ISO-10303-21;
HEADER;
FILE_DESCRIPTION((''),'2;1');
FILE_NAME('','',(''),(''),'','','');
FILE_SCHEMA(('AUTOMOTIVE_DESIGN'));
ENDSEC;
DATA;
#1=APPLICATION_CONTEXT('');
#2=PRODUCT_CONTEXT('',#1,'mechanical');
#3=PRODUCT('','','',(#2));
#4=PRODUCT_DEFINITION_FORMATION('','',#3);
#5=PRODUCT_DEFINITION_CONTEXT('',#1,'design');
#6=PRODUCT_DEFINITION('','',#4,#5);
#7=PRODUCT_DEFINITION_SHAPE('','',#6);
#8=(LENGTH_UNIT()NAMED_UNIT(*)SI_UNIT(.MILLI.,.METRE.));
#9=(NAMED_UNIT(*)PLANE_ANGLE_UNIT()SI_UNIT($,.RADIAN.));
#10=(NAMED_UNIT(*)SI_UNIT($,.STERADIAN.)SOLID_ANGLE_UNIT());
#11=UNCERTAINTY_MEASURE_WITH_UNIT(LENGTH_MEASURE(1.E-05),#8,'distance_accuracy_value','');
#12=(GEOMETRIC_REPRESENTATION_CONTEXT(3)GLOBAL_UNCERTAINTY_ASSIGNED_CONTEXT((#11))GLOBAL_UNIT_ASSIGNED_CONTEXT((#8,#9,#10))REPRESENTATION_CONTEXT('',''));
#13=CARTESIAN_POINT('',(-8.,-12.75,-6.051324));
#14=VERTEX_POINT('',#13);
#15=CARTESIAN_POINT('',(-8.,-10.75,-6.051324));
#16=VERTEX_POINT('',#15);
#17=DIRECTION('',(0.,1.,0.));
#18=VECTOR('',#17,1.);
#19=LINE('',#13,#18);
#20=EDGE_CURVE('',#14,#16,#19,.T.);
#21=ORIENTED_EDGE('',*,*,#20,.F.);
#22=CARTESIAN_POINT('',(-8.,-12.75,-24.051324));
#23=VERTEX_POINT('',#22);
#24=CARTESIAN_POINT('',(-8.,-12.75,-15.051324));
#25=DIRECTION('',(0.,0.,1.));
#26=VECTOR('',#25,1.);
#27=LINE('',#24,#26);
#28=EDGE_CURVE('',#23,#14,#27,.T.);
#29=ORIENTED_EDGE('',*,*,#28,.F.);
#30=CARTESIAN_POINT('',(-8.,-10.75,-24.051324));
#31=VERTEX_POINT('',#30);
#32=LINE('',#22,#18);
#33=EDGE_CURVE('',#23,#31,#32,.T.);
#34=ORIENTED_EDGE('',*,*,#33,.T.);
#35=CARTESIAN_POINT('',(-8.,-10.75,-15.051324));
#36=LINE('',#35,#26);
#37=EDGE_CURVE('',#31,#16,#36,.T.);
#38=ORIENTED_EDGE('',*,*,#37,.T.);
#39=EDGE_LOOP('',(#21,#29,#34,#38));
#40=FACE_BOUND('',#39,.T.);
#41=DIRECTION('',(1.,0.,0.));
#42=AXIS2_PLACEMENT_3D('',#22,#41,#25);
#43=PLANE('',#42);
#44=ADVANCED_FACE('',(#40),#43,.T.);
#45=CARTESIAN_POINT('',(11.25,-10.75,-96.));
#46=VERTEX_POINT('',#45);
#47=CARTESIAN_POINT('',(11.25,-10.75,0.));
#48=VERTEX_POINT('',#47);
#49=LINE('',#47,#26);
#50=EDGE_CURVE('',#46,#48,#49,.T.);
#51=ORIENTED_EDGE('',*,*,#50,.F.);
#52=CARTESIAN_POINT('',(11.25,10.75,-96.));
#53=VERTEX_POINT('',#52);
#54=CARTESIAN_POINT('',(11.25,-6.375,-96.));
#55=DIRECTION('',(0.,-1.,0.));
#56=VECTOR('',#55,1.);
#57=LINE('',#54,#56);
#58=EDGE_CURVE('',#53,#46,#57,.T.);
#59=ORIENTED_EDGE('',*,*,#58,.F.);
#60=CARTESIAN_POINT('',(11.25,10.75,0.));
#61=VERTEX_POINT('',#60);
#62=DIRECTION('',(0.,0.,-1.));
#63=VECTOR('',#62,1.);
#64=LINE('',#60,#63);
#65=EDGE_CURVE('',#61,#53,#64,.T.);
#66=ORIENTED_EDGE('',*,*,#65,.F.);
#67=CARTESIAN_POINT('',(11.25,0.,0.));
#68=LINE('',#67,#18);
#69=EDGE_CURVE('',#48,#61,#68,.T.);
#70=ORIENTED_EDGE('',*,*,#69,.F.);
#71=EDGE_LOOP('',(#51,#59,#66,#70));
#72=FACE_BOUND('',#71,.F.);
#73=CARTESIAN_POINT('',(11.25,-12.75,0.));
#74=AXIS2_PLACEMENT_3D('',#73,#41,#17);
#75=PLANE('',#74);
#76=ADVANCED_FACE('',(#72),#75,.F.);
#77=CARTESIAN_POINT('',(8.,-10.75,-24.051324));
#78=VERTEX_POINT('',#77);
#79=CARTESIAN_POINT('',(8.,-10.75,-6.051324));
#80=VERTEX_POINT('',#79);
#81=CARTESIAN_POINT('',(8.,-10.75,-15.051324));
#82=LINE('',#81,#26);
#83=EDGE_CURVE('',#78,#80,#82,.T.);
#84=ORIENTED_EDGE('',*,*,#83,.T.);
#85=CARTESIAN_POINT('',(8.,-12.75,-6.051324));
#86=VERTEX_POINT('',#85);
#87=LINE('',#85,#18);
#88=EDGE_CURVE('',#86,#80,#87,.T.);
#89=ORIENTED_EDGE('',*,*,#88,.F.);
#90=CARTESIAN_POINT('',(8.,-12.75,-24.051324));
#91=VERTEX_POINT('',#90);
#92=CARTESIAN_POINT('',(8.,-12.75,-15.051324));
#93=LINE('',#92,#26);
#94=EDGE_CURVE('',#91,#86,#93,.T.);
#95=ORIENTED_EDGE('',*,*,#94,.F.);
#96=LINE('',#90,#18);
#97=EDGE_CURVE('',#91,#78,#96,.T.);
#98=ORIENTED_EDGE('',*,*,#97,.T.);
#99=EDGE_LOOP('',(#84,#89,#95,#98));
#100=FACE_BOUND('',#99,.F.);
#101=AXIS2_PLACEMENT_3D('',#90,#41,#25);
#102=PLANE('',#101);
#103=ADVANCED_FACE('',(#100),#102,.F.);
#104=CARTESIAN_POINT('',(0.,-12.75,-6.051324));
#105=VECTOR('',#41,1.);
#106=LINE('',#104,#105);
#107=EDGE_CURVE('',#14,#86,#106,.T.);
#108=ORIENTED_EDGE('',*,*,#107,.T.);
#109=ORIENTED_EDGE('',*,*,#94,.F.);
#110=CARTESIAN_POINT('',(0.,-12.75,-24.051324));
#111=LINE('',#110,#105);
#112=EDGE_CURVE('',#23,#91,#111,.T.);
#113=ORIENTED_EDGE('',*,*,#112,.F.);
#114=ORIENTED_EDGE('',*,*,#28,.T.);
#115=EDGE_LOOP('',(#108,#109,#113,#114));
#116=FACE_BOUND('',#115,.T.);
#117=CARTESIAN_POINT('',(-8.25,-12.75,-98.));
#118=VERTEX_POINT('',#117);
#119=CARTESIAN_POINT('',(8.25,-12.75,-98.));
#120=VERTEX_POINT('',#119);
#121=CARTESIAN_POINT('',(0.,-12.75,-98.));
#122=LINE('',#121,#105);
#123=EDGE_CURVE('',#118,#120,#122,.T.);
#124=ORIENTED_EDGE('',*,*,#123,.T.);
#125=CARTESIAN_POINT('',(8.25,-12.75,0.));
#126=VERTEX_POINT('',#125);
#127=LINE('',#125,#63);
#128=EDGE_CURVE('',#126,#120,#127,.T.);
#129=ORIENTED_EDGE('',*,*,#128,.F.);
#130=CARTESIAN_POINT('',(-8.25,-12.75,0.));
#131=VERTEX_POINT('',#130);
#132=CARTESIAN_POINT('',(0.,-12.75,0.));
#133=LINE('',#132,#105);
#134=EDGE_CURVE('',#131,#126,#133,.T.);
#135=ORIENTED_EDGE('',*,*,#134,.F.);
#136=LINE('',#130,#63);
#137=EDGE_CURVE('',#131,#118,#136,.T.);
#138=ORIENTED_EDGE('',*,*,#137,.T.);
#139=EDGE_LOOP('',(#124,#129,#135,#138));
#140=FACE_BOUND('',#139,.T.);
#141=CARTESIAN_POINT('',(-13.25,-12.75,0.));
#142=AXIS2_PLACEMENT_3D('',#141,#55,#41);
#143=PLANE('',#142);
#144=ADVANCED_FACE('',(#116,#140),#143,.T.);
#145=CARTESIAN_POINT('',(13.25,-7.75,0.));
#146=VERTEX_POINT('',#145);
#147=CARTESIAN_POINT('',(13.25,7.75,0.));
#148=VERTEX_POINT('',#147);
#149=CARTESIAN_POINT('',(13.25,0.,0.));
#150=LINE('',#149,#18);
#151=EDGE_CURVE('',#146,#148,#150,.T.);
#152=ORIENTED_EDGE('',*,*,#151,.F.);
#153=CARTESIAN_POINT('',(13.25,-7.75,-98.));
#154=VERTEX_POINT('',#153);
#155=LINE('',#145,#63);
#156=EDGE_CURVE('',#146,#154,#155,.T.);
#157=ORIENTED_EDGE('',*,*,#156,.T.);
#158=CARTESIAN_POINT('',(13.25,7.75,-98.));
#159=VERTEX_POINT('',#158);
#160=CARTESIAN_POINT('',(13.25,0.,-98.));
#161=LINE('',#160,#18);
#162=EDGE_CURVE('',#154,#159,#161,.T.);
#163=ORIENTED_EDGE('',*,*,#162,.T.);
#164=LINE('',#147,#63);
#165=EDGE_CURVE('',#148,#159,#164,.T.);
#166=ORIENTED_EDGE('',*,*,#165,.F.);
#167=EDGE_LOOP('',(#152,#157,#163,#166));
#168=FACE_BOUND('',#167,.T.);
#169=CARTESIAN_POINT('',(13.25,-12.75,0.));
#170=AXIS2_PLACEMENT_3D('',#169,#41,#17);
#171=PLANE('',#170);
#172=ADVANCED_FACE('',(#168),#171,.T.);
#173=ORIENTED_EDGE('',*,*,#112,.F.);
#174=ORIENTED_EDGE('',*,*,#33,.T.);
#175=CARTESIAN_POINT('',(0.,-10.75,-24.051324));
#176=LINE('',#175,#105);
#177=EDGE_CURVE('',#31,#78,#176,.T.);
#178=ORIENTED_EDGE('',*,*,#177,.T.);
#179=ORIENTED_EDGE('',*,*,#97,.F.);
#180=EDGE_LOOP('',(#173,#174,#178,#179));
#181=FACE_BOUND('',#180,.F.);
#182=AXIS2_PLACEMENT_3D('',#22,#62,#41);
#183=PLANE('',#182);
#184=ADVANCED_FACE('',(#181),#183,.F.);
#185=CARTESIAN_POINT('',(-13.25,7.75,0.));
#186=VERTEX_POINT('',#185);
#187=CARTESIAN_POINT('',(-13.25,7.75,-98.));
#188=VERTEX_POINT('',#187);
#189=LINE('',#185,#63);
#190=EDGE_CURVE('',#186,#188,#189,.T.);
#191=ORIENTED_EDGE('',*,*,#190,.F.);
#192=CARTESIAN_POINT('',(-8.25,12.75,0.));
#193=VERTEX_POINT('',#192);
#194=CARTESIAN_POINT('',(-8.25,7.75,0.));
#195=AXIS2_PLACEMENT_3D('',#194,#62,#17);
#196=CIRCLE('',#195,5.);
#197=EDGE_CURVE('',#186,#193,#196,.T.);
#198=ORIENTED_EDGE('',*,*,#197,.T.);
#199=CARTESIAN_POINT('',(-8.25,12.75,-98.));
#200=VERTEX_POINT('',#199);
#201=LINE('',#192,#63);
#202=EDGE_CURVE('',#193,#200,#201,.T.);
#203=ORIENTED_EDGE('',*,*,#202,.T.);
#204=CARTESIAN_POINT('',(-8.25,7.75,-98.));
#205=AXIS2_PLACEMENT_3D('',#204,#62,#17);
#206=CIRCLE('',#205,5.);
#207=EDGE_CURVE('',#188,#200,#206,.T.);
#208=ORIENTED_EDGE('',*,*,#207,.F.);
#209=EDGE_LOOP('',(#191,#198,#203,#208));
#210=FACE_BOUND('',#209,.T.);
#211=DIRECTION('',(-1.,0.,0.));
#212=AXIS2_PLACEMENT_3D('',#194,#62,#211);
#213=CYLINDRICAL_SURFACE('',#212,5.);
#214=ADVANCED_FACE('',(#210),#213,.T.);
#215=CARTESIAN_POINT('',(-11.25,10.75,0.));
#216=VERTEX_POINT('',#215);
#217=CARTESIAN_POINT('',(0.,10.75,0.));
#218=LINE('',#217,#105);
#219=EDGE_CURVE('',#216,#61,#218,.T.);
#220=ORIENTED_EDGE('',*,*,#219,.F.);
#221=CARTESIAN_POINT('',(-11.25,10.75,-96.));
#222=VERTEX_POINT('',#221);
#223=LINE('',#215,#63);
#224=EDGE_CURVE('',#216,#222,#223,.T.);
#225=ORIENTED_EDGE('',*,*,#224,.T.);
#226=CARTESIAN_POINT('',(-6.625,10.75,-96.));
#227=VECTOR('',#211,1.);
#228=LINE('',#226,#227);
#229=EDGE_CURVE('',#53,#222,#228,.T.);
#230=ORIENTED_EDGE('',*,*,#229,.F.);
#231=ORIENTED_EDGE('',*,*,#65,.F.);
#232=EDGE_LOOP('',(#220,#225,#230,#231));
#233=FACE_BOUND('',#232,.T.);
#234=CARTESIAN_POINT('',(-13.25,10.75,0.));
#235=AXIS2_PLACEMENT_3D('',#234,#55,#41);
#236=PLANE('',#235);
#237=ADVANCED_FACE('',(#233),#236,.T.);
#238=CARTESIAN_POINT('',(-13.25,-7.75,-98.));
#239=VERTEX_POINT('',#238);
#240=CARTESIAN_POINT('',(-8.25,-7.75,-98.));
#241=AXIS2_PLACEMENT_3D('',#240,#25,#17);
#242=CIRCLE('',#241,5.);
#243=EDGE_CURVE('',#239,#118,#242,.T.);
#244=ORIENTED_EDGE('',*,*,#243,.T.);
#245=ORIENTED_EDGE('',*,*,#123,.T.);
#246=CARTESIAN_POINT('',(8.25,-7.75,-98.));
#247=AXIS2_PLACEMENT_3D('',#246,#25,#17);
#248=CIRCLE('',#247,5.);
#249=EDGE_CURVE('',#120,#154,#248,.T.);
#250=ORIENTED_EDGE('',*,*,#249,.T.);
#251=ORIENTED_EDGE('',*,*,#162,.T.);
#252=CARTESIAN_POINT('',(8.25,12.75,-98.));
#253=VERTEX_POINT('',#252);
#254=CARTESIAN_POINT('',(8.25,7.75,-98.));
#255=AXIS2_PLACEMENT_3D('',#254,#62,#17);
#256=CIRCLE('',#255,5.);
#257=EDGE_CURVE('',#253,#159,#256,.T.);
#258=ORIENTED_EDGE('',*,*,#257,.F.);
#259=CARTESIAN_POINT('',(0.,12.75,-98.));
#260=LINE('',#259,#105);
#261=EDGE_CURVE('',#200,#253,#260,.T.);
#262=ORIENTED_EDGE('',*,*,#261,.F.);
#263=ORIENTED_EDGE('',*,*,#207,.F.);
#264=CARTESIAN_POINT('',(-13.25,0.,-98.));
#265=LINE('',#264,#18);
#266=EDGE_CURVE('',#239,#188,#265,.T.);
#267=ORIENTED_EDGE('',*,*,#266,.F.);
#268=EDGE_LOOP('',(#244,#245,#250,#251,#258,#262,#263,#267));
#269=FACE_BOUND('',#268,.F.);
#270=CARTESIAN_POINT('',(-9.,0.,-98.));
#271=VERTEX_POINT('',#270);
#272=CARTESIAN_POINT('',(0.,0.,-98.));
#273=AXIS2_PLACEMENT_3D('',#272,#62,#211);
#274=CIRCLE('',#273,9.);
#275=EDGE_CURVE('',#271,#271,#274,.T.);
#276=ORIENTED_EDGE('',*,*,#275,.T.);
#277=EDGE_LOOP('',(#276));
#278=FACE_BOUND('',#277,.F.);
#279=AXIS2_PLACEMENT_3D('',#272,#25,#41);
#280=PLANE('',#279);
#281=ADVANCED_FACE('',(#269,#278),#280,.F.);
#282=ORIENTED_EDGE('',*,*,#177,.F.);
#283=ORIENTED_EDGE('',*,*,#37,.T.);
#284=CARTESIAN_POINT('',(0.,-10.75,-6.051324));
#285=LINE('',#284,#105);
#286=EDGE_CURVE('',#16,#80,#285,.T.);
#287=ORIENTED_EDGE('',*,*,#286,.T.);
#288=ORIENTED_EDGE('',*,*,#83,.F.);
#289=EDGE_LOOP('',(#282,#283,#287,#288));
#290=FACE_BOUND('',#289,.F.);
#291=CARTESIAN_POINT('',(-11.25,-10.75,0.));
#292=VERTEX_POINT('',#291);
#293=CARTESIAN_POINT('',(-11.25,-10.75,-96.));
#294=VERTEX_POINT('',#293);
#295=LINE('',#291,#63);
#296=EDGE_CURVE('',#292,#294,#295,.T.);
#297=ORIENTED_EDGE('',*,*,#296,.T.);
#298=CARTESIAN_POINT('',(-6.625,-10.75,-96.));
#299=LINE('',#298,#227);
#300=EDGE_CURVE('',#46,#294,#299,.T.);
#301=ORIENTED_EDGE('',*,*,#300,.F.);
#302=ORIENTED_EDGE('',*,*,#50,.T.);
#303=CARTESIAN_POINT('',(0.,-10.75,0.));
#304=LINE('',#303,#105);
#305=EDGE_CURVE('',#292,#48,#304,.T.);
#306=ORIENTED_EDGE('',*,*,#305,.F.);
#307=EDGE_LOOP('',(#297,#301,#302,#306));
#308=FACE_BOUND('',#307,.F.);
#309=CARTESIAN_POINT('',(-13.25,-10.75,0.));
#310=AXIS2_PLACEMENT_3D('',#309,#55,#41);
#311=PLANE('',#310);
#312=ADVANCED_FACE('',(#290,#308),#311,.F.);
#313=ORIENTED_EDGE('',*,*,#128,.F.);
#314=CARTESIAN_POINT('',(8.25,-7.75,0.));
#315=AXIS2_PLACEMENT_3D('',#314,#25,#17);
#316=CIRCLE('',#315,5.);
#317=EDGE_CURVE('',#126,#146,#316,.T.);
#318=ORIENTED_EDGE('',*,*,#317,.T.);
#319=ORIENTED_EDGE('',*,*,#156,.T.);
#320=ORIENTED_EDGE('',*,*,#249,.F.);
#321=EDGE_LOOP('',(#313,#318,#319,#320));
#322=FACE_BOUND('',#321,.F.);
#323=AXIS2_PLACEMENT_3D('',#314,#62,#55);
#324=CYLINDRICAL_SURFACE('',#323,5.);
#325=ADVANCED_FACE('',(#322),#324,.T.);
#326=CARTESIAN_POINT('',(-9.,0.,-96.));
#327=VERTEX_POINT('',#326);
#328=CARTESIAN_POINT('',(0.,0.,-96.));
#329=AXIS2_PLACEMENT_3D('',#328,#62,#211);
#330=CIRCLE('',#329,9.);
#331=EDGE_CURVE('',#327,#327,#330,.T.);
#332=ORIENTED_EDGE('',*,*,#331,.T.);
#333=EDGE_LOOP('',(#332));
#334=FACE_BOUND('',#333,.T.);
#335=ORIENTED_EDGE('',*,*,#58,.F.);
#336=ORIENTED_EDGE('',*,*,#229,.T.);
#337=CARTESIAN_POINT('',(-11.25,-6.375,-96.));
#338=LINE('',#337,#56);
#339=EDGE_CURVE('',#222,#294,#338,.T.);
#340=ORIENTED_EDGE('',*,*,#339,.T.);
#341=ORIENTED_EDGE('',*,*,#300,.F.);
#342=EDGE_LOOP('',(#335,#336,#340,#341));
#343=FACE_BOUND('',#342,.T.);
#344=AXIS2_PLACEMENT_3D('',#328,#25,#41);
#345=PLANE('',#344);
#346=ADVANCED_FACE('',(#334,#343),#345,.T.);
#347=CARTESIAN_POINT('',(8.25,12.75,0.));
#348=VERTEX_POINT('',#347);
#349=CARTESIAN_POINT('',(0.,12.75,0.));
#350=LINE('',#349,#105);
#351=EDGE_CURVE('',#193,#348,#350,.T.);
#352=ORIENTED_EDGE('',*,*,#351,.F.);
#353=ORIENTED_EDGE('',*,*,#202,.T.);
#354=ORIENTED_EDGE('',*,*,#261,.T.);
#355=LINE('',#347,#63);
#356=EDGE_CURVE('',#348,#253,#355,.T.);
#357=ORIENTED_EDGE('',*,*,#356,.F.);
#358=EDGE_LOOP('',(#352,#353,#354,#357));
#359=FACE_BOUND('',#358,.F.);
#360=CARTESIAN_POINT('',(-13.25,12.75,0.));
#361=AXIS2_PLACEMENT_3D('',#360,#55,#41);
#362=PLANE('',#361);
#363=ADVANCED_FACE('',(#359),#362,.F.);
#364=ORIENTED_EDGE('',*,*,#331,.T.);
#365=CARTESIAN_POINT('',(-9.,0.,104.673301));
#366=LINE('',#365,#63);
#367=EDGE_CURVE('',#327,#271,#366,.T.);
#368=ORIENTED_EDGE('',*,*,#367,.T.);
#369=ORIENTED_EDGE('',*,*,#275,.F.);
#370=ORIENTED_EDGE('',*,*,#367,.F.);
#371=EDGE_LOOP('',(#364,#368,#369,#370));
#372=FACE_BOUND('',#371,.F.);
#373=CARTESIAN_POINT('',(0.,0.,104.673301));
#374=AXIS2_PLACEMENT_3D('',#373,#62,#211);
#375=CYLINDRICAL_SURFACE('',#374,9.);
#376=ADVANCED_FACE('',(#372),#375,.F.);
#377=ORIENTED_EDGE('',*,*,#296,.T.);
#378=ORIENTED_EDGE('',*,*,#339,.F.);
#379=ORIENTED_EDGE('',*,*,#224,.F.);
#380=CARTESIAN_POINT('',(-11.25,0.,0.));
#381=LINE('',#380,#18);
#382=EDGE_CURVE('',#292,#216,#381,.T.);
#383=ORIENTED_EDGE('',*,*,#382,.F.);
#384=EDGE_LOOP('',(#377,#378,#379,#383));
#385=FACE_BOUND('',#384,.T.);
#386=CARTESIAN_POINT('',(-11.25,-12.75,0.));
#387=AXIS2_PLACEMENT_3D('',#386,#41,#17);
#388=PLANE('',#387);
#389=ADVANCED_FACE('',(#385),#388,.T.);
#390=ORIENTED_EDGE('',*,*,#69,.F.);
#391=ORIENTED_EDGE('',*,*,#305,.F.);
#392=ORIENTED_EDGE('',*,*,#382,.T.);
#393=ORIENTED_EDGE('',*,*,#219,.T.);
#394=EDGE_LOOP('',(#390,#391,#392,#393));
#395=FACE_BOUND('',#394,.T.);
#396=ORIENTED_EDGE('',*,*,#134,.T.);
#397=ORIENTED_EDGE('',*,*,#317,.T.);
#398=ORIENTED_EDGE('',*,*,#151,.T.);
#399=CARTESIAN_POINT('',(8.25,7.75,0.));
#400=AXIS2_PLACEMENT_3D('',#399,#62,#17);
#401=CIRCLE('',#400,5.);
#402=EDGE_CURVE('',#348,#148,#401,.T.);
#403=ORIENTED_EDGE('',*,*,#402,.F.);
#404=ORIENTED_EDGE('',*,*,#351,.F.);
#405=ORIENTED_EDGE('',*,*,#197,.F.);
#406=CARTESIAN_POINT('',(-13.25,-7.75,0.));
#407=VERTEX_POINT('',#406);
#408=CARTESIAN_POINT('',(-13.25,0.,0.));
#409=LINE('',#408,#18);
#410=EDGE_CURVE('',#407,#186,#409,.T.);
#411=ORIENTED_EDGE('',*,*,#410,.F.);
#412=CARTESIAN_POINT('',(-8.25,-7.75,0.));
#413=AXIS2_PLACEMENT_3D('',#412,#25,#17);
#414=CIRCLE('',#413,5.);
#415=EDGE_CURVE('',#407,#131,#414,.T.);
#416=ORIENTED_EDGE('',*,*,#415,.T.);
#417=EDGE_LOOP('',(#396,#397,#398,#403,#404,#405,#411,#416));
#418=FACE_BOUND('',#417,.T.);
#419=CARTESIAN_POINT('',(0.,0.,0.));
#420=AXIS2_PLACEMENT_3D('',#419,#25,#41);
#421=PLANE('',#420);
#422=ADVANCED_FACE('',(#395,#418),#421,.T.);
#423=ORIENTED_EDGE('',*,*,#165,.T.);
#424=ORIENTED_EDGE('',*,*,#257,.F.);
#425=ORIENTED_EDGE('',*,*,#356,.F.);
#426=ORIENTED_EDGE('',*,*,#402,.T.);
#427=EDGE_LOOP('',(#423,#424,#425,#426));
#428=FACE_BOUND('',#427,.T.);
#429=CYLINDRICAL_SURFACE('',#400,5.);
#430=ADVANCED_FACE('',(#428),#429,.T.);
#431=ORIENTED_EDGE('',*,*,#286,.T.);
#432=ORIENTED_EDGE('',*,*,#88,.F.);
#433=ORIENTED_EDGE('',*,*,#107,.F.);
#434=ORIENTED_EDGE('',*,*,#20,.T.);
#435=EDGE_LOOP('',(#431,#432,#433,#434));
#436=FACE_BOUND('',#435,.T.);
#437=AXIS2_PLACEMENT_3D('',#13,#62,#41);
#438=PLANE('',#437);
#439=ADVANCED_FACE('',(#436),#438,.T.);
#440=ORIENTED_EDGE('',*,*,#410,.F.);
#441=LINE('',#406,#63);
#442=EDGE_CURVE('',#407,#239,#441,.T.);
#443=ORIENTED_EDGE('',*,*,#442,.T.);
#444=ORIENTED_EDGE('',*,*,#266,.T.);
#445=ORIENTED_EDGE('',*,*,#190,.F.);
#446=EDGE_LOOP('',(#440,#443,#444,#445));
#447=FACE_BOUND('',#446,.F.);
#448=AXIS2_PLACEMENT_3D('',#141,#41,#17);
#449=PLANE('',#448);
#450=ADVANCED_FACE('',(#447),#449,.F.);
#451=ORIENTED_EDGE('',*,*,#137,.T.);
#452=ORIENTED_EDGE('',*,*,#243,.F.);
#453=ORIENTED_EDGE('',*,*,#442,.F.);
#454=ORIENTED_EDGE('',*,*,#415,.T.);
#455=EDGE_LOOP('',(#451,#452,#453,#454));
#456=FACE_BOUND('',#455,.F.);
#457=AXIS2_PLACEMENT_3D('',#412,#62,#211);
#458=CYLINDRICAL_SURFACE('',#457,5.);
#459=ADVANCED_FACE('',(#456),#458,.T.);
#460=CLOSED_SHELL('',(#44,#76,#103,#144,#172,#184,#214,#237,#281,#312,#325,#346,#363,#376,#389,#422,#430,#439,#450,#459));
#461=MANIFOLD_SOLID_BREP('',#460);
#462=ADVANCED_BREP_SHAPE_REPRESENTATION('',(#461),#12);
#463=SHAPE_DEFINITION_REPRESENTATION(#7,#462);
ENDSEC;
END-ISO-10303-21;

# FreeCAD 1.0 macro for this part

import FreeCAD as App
import Part
import Sketcher


def edges_at(feature, points):
    """Names of the edges that pass closest to the given points."""
    edges = feature.Shape.Edges
    near = lambda p: min(range(len(edges)), key=lambda i: edges[i].distToShape(Part.Vertex(*p))[0])
    return sorted({f"Edge{near(p) + 1}" for p in points})


def faces_at(feature, points):
    """Names of the faces that lie closest to the given points."""
    faces = feature.Shape.Faces
    near = lambda p: min(range(len(faces)), key=lambda i: faces[i].distToShape(Part.Vertex(*p))[0])
    return sorted({f"Face{near(p) + 1}" for p in points})


def add_polygon(sketch, points):
    """Adds a closed chain of lines whose ends are joined by coincident constraints."""
    first, n = sketch.GeometryCount, len(points)
    for a, b in zip(points, points[1:] + points[:1]):
        sketch.addGeometry(Part.LineSegment(App.Vector(*a, 0), App.Vector(*b, 0)), False)
    for i in range(n):
        sketch.addConstraint(Sketcher.Constraint("Coincident", first + i, 2, first + (i + 1) % n, 1))

doc = App.newDocument("Part")
body = doc.addObject("PartDesign::Body", "Body")

sketch1 = body.newObject("Sketcher::SketchObject", "Sketch")
sketch1.AttachmentSupport = (doc.getObject("XY_Plane"), [""])
sketch1.MapMode = "FlatFace"
add_polygon(sketch1, [(-13, 13), (-13, -13), (13, -13), (13, 13)])
sketch1.addConstraint([
    Sketcher.Constraint("Vertical", 0),
    Sketcher.Constraint("Horizontal", 1),
    Sketcher.Constraint("Vertical", 2),
    Sketcher.Constraint("Horizontal", 3),
    Sketcher.Constraint("Symmetric", 0, 2, 2, 2, -1, 1),
    Sketcher.Constraint("DistanceX", 1, 1, 1, 2, 26.5),
    Sketcher.Constraint("DistanceY", 0, 2, 0, 1, 25.5),
])
pad1 = body.newObject("PartDesign::Pad", "Pad")
pad1.Profile = sketch1
pad1.Length = 98
pad1.Reversed = True
doc.recompute()

thickness = body.newObject("PartDesign::Thickness", "Thickness")
thickness.Base = (pad1, faces_at(pad1, [(0, 0, 0)]))
thickness.Value = 2
thickness.Reversed = True
thickness.Join = "Arc"

sketch2 = body.newObject("Sketcher::SketchObject", "Sketch001")
sketch2.AttachmentSupport = (doc.getObject("XY_Plane"), [""])
sketch2.MapMode = "FlatFace"
sketch2.addGeometry(Part.Circle(App.Vector(0, 0, 0), App.Vector(0, 0, 1), 9), False)
sketch2.addConstraint([
    Sketcher.Constraint("Coincident", 0, 3, -1, 1),
    Sketcher.Constraint("Diameter", 0, 18.0),
])
doc.recompute()
hole = body.newObject("PartDesign::Hole", "Hole")
hole.Profile = sketch2
hole.ThreadType = "None"
hole.Diameter = 18
hole.DepthType = "ThroughAll"

sketch3 = body.newObject("Sketcher::SketchObject", "Sketch002")
sketch3.AttachmentSupport = (doc.getObject("XZ_Plane"), [""])
sketch3.MapMode = "FlatFace"
sketch3.AttachmentOffset = App.Placement(App.Vector(0, 0, 12.75), App.Rotation())
add_polygon(sketch3, [(-8, -6), (-8, -24), (8, -24), (8, -6)])
sketch3.addConstraint([
    Sketcher.Constraint("Vertical", 0),
    Sketcher.Constraint("Horizontal", 1),
    Sketcher.Constraint("Vertical", 2),
    Sketcher.Constraint("Horizontal", 3),
    Sketcher.Constraint("DistanceX", 1, 1, 1, 2, 16.0),
    Sketcher.Constraint("DistanceY", 0, 2, 0, 1, 18.0),
    Sketcher.Constraint("DistanceX", 0, 2, -1, 1, 8.0),
    Sketcher.Constraint("DistanceY", 0, 2, -1, 1, 24.051324),
])
pocket1 = body.newObject("PartDesign::Pocket", "Pocket")
pocket1.Profile = sketch3
pocket1.Length = 2
doc.recompute()

fillet = body.newObject("PartDesign::Fillet", "Fillet")
fillet.Base = (pocket1, edges_at(pocket1, [
    (13.25, -12.75, -49),
    (13.25, 12.75, -49),
    (-13.25, -12.75, -49),
    (-13.25, 12.75, -49),
]))
fillet.Radius = 5

doc.recompute()
